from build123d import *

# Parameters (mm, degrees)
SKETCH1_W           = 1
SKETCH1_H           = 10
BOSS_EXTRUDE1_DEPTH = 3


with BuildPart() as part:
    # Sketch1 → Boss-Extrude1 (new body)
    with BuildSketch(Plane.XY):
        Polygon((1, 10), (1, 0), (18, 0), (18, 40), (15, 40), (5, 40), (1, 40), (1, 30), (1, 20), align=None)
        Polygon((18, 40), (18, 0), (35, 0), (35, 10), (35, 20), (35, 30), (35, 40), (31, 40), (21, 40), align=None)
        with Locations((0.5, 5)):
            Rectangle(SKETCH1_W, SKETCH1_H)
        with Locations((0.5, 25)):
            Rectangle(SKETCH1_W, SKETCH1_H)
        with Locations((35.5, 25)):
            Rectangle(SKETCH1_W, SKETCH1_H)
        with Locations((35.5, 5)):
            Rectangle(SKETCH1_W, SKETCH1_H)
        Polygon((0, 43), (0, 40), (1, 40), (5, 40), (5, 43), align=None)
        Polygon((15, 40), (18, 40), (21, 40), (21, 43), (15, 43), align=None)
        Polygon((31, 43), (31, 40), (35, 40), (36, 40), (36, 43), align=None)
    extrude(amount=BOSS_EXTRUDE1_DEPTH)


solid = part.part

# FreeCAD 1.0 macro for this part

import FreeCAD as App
import Part
import Sketcher
from FreeCAD import Vector


def add_polygon(sketch, points):
    """Adds a closed chain of lines whose ends are joined by coincident constraints."""
    first, n = sketch.GeometryCount, len(points)
    for a, b in zip(points, points[1:] + points[:1]):
        sketch.addGeometry(Part.LineSegment(App.Vector(*a, 0), App.Vector(*b, 0)), False)
    for i in range(n):
        sketch.addConstraint(Sketcher.Constraint("Coincident", first + i, 2, first + (i + 1) % n, 1))

doc = App.newDocument("Part")
params = doc.addObject("Spreadsheet::Sheet", "Params")
for row, (alias, value) in enumerate([
    ("sketch1_width", "1 mm"),
    ("sketch1_width2", "5 mm"),
    ("sketch1_width3", "10 mm"),
    ("sketch1_width4", "6 mm"),
    ("sketch1_height", "3 mm"),
    ("pad1_length", "3 mm"),
], start=1):
    params.set(f"A{row}", alias)
    params.set(f"B{row}", "=" + value)
    params.setAlias(f"B{row}", alias)

body = doc.addObject("PartDesign::Body", "Body")

# Sketch on XY plane
sketch1 = doc.addObject("Sketcher::SketchObject", "Sketch")
body.addObject(sketch1)
sketch1.AttachmentSupport = (doc.XY_Plane, [""])
sketch1.MapMode = "FlatFace"
add_polygon(sketch1, [(35, 10), (35, 20), (36, 20), (36, 30), (35, 30), (35, 40), (36, 40), (36, 43), (31, 43), (31, 40), (21, 40), (21, 43), (15, 43), (15, 40), (5, 40), (5, 43), (0, 43), (0, 40), (1, 40), (1, 30), (0, 30), (0, 20), (1, 20), (1, 10), (0, 10), (0, 0), (36, 0), (36, 10)])  # lines 0-27
sketch1.addConstraint(Sketcher.Constraint("Vertical", 0))
sketch1.addConstraint(Sketcher.Constraint("Horizontal", 1))
sketch1.addConstraint(Sketcher.Constraint("Vertical", 2))
sketch1.addConstraint(Sketcher.Constraint("Horizontal", 3))
sketch1.addConstraint(Sketcher.Constraint("Vertical", 4))
sketch1.addConstraint(Sketcher.Constraint("Horizontal", 5))
sketch1.addConstraint(Sketcher.Constraint("Vertical", 6))
sketch1.addConstraint(Sketcher.Constraint("Horizontal", 7))
sketch1.addConstraint(Sketcher.Constraint("Vertical", 8))
sketch1.addConstraint(Sketcher.Constraint("Horizontal", 9))
sketch1.addConstraint(Sketcher.Constraint("Vertical", 10))
sketch1.addConstraint(Sketcher.Constraint("Horizontal", 11))
sketch1.addConstraint(Sketcher.Constraint("Vertical", 12))
sketch1.addConstraint(Sketcher.Constraint("Horizontal", 13))
sketch1.addConstraint(Sketcher.Constraint("Vertical", 14))
sketch1.addConstraint(Sketcher.Constraint("Horizontal", 15))
sketch1.addConstraint(Sketcher.Constraint("Vertical", 16))
sketch1.addConstraint(Sketcher.Constraint("Horizontal", 17))
sketch1.addConstraint(Sketcher.Constraint("Vertical", 18))
sketch1.addConstraint(Sketcher.Constraint("Horizontal", 19))
sketch1.addConstraint(Sketcher.Constraint("Vertical", 20))
sketch1.addConstraint(Sketcher.Constraint("Horizontal", 21))
sketch1.addConstraint(Sketcher.Constraint("Vertical", 22))
sketch1.addConstraint(Sketcher.Constraint("Horizontal", 23))
sketch1.addConstraint(Sketcher.Constraint("Vertical", 24))
sketch1.addConstraint(Sketcher.Constraint("Horizontal", 25))
sketch1.addConstraint(Sketcher.Constraint("Vertical", 26))
sketch1.addConstraint(Sketcher.Constraint("Horizontal", 27))
sketch1.addConstraint(Sketcher.Constraint("Coincident", 24, 2, -1, 1))
sketch1.addConstraint(Sketcher.Constraint("PointOnObject", 15, 2, -2))
sketch1.addConstraint(Sketcher.Constraint("PointOnObject", 19, 2, -2))
sketch1.addConstraint(Sketcher.Constraint("Horizontal", 5, 2, 8, 2))
sketch1.addConstraint(Sketcher.Constraint("Horizontal", 7, 2, 10, 2))
sketch1.addConstraint(Sketcher.Constraint("Horizontal", 9, 2, 12, 2))
sketch1.addConstraint(Sketcher.Constraint("Horizontal", 11, 2, 14, 2))
sketch1.addConstraint(Sketcher.Constraint("Horizontal", 13, 2, 16, 2))
sketch1.addConstraint(Sketcher.Constraint("Horizontal", 3, 2, 18, 2))
sketch1.addConstraint(Sketcher.Constraint("Horizontal", 1, 2, 20, 2))
sketch1.addConstraint(Sketcher.Constraint("Horizontal", 23, 2, 26, 2))
sketch1.addConstraint(Sketcher.Constraint("Vertical", 0, 2, 3, 2))
sketch1.addConstraint(Sketcher.Constraint("Vertical", 2, 2, 5, 2))
sketch1.addConstraint(Sketcher.Constraint("Vertical", 18, 2, 21, 2))
sketch1.addConstraint(Sketcher.Constraint("Vertical", 6, 2, 25, 2))
sketch1.addConstraint(Sketcher.Constraint("Equal", 9, 13))
sketch1.addConstraint(Sketcher.Constraint("Equal", 7, 15))
sketch1.addConstraint(Sketcher.Constraint("Equal", 5, 17))
sketch1.addConstraint(Sketcher.Constraint("Equal", 13, 0))
sketch1.addConstraint(Sketcher.Constraint("Equal", 0, 2))
sketch1.addConstraint(Sketcher.Constraint("Equal", 2, 4))
sketch1.addConstraint(Sketcher.Constraint("Equal", 22, 24))
sketch1.addConstraint(Sketcher.Constraint("DistanceX", 1, 1, 1, 2, 1.0))
sketch1.addConstraint(Sketcher.Constraint("DistanceX", 7, 2, 7, 1, 5.0))
sketch1.addConstraint(Sketcher.Constraint("DistanceX", 9, 2, 9, 1, 10.0))
sketch1.addConstraint(Sketcher.Constraint("DistanceX", 11, 2, 11, 1, 6.0))
sketch1.addConstraint(Sketcher.Constraint("DistanceY", 6, 1, 6, 2, 3.0))
sketch1.setExpression("Constraints[78]", "Params.sketch1_width")
sketch1.setExpression("Constraints[79]", "Params.sketch1_width2")
sketch1.setExpression("Constraints[80]", "Params.sketch1_width3")
sketch1.setExpression("Constraints[81]", "Params.sketch1_width4")
sketch1.setExpression("Constraints[82]", "Params.sketch1_height")
pad1 = doc.addObject("PartDesign::Pad", "Pad")
body.addObject(pad1)
pad1.Profile = sketch1
pad1.setExpression("Length", "Params.pad1_length")

doc.recompute()
